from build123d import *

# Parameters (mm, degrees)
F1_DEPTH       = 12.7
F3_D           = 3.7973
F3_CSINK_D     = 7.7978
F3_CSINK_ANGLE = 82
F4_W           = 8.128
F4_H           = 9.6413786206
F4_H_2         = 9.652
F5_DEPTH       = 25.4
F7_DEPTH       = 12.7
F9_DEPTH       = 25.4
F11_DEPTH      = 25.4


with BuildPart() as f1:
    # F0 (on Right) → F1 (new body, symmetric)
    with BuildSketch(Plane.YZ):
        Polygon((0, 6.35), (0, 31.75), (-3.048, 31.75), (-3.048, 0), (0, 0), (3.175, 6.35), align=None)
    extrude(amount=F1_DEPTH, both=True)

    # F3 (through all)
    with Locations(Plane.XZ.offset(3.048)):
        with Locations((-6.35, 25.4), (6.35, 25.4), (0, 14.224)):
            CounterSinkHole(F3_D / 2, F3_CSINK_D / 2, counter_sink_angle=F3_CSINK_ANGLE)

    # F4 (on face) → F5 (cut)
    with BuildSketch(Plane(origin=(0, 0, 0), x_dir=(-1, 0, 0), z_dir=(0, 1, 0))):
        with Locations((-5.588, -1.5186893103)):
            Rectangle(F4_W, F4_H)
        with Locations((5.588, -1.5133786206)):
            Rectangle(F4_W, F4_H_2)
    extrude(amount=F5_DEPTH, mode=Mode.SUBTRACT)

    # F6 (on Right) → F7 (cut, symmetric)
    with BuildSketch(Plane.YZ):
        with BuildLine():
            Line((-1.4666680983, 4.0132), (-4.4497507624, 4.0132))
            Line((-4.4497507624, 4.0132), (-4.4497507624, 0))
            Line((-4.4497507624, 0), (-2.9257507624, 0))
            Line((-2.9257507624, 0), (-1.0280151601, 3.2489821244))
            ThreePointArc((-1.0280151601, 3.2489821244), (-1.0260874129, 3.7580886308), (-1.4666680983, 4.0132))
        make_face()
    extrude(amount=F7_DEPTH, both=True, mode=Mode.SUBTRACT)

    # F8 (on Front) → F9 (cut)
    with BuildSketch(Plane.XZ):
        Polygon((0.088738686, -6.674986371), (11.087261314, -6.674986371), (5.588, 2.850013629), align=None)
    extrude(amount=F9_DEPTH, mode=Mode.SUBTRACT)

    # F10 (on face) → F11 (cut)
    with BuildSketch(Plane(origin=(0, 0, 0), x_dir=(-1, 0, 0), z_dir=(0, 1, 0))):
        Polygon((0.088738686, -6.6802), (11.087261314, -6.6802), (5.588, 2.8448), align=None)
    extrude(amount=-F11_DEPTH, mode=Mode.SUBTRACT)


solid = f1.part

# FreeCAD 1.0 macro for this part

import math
import FreeCAD as App
import Part
import Sketcher
from FreeCAD import Vector
Q = App.Units.Quantity


def add_polygon(sketch, points):
    """Adds a closed chain of lines whose ends are joined by coincident constraints."""
    first, n = sketch.GeometryCount, len(points)
    for a, b in zip(points, points[1:] + points[:1]):
        sketch.addGeometry(Part.LineSegment(App.Vector(*a, 0), App.Vector(*b, 0)), False)
    for i in range(n):
        sketch.addConstraint(Sketcher.Constraint("Coincident", first + i, 2, first + (i + 1) % n, 1))

doc = App.newDocument("Part")
params = doc.addObject("Spreadsheet::Sheet", "Params")
for row, (alias, value) in enumerate([
    ("sketch1_height", "1 in"),
    ("sketch1_width", "0.12 in"),
    ("sketch1_height2", "1.25 in"),
    ("sketch1_width2", "0.125 in"),
    ("pad1_length", "1 in"),
    ("hole_diameter", "0.1495 in"),
    ("hole_csink_diameter", "0.307 in"),
    ("sketch3_width", "0.32 in"),
    ("sketch3_height", "0.38 in"),
    ("pocket1_length", "1 in"),
    ("sketch4_radius", "0.02 in"),
    ("sketch4_width", "0.06 in"),
    ("sketch4_height", "0.158 in"),
    ("pocket2_length", "1 in"),
    ("pocket3_length", "1 in"),
    ("pocket4_length", "1 in"),
], start=1):
    params.set(f"A{row}", alias)
    params.set(f"B{row}", "=" + value)
    params.setAlias(f"B{row}", alias)

body = doc.addObject("PartDesign::Body", "Body")

sketch1 = body.newObject("Sketcher::SketchObject", "Sketch")
sketch1.AttachmentSupport = (doc.getObject("YZ_Plane"), [""])
sketch1.MapMode = "FlatFace"
add_polygon(sketch1, [(0, 6.35), (0, 31.75), (-3.048, 31.75), (-3.048, 0), (0, 0), (3.175, 6.35)])
sketch1.addConstraint(Sketcher.Constraint("Vertical", 0))
sketch1.addConstraint(Sketcher.Constraint("Horizontal", 1))
sketch1.addConstraint(Sketcher.Constraint("Vertical", 2))
sketch1.addConstraint(Sketcher.Constraint("Horizontal", 3))
sketch1.addConstraint(Sketcher.Constraint("Horizontal", 5))
sketch1.addConstraint(Sketcher.Constraint("Coincident", 3, 2, -1, 1))
sketch1.addConstraint(Sketcher.Constraint("PointOnObject", 0, 2, -2))
sketch1.addConstraint(Sketcher.Constraint("DistanceY", 0, 1, 0, 2, Q("1 in")))
sketch1.addConstraint(Sketcher.Constraint("DistanceX", 1, 2, 1, 1, Q("0.12 in")))
sketch1.addConstraint(Sketcher.Constraint("DistanceY", 2, 2, 2, 1, Q("1.25 in")))
sketch1.addConstraint(Sketcher.Constraint("DistanceX", 5, 2, 5, 1, Q("0.125 in")))
sketch1.setExpression("Constraints[13]", "Params.sketch1_height")
sketch1.setExpression("Constraints[14]", "Params.sketch1_width")
sketch1.setExpression("Constraints[15]", "Params.sketch1_height2")
sketch1.setExpression("Constraints[16]", "Params.sketch1_width2")
pad1 = body.newObject("PartDesign::Pad", "Pad")
pad1.Profile = sketch1
pad1.setExpression("Length", "Params.pad1_length")
pad1.Midplane = True

sketch2 = body.newObject("Sketcher::SketchObject", "Sketch001")
sketch2.AttachmentSupport = (doc.getObject("XZ_Plane"), [""])
sketch2.MapMode = "FlatFace"
sketch2.AttachmentOffset = App.Placement(Vector(0, 0, 0.12 * 25.4), App.Rotation())
sketch2.addGeometry(Part.Circle(Vector(-6.35, 25.4, 0), Vector(0, 0, 1), 1.89865), False)
sketch2.addGeometry(Part.Circle(Vector(6.35, 25.4, 0), Vector(0, 0, 1), 1.89865), False)
sketch2.addGeometry(Part.Circle(Vector(0, 14.224, 0), Vector(0, 0, 1), 1.89865), False)
sketch2.addConstraint(Sketcher.Constraint("Equal", 0, 1))
sketch2.addConstraint(Sketcher.Constraint("Equal", 1, 2))
sketch2.addConstraint(Sketcher.Constraint("Symmetric", 0, 3, 1, 3, -2))
sketch2.addConstraint(Sketcher.Constraint("PointOnObject", 2, 3, -2))
sketch2.addConstraint(Sketcher.Constraint("DistanceY", -1, 1, 0, 3, Q("1 in")))
sketch2.addConstraint(Sketcher.Constraint("Diameter", 0, Q("0.1495 in")))
sketch2.addConstraint(Sketcher.Constraint("DistanceX", 0, 3, 1, 3, Q("0.5 in")))
sketch2.addConstraint(Sketcher.Constraint("DistanceY", -1, 1, 2, 3, Q("0.56 in")))
doc.recompute()
hole = body.newObject("PartDesign::Hole", "Hole")
hole.Profile = sketch2
hole.ThreadType = "None"
hole.setExpression("Diameter", "Params.hole_diameter")
hole.DepthType = "ThroughAll"
hole.HoleCutType = "Countersink"
hole.setExpression("HoleCutDiameter", "Params.hole_csink_diameter")
hole.HoleCutCountersinkAngle = 82

sketch3 = body.newObject("Sketcher::SketchObject", "Sketch002")
sketch3.AttachmentSupport = (doc.getObject("XZ_Plane"), [""])
sketch3.MapMode = "FlatFace"
add_polygon(sketch3, [(9.652, 3.302), (9.652, -6.339379), (1.524, -6.339379), (1.524, 3.302)])
add_polygon(sketch3, [(-1.524, 3.312621), (-1.524, -6.339379), (-9.652, -6.339379), (-9.652, 3.312621)])
sketch3.addConstraint(Sketcher.Constraint("Vertical", 0))
sketch3.addConstraint(Sketcher.Constraint("Horizontal", 1))
sketch3.addConstraint(Sketcher.Constraint("Vertical", 2))
sketch3.addConstraint(Sketcher.Constraint("Horizontal", 3))
sketch3.addConstraint(Sketcher.Constraint("Vertical", 4))
sketch3.addConstraint(Sketcher.Constraint("Horizontal", 5))
sketch3.addConstraint(Sketcher.Constraint("Vertical", 6))
sketch3.addConstraint(Sketcher.Constraint("Horizontal", 7))
sketch3.addConstraint(Sketcher.Constraint("Symmetric", 1, 2, 4, 2, -2))
sketch3.addConstraint(Sketcher.Constraint("Equal", 3, 5))
sketch3.addConstraint(Sketcher.Constraint("DistanceX", 1, 2, 1, 1, Q("0.32 in")))
sketch3.addConstraint(Sketcher.Constraint("DistanceY", 4, 2, 4, 1, Q("0.38 in")))
sketch3.addConstraint(Sketcher.Constraint("DistanceX", -1, 1, 0, 2, Q("0.38 in")))
sketch3.addConstraint(Sketcher.Constraint("DistanceY", -1, 1, 2, 2, Q("0.13 in")))
sketch3.addConstraint(Sketcher.Constraint("DistanceY", 0, 2, 0, 1, 9.641379))
sketch3.setExpression("Constraints[18]", "Params.sketch3_width")
sketch3.setExpression("Constraints[19]", "Params.sketch3_height")
pocket1 = body.newObject("PartDesign::Pocket", "Pocket")
pocket1.Profile = sketch3
pocket1.setExpression("Length", "Params.pocket1_length")

sketch4 = body.newObject("Sketcher::SketchObject", "Sketch003")
sketch4.AttachmentSupport = (doc.getObject("YZ_Plane"), [""])
sketch4.MapMode = "FlatFace"
sketch4.addGeometry(Part.LineSegment(Vector(-1.466668, 4.0132, 0), Vector(-4.449751, 4.0132, 0)), False)
sketch4.addGeometry(Part.LineSegment(Vector(-4.449751, 4.0132, 0), Vector(-4.449751, 0, 0)), False)
sketch4.addGeometry(Part.LineSegment(Vector(-4.449751, 0, 0), Vector(-2.925751, 0, 0)), False)
sketch4.addGeometry(Part.LineSegment(Vector(-2.925751, 0, 0), Vector(-1.028015, 3.248982, 0)), False)
sketch4.addGeometry(Part.ArcOfCircle(Part.Circle(Vector(-1.466668, 3.5052, 0), Vector(0, 0, 1), 0.508), math.radians(-30.289268), math.radians(90)), False)
sketch4.addConstraint(Sketcher.Constraint("Coincident", 0, 2, 1, 1))
sketch4.addConstraint(Sketcher.Constraint("Coincident", 1, 2, 2, 1))
sketch4.addConstraint(Sketcher.Constraint("Coincident", 2, 2, 3, 1))
sketch4.addConstraint(Sketcher.Constraint("Tangent", 3, 2, 4, 1))
sketch4.addConstraint(Sketcher.Constraint("Tangent", 4, 2, 0, 1))
sketch4.addConstraint(Sketcher.Constraint("Horizontal", 0))
sketch4.addConstraint(Sketcher.Constraint("Vertical", 1))
sketch4.addConstraint(Sketcher.Constraint("Horizontal", 2))
sketch4.addConstraint(Sketcher.Constraint("PointOnObject", 1, 2, -1))
sketch4.addConstraint(Sketcher.Constraint("Radius", 4, Q("0.02 in")))
sketch4.addConstraint(Sketcher.Constraint("DistanceX", 2, 1, 2, 2, Q("0.06 in")))
sketch4.addConstraint(Sketcher.Constraint("DistanceY", 1, 2, 1, 1, Q("0.158 in")))
sketch4.addConstraint(Sketcher.Constraint("DistanceX", 0, 2, 0, 1, 2.983083))
sketch4.addConstraint(Sketcher.Constraint("DistanceX", 4, 3, -1, 1, 1.466668))
sketch4.setExpression("Constraints[9]", "Params.sketch4_radius")
sketch4.setExpression("Constraints[10]", "Params.sketch4_width")
sketch4.setExpression("Constraints[11]", "Params.sketch4_height")
pocket2 = body.newObject("PartDesign::Pocket", "Pocket001")
pocket2.Profile = sketch4
pocket2.setExpression("Length", "Params.pocket2_length")
pocket2.Midplane = True

sketch5 = body.newObject("Sketcher::SketchObject", "Sketch004")
sketch5.AttachmentSupport = (doc.getObject("XZ_Plane"), [""])
sketch5.MapMode = "FlatFace"
add_polygon(sketch5, [(0.088739, -6.674986), (11.087261, -6.674986), (5.588, 2.850014)])
sketch5.addConstraint(Sketcher.Constraint("Horizontal", 0))
sketch5.addConstraint(Sketcher.Constraint("Equal", 1, 2))
sketch5.addConstraint(Sketcher.Constraint("Angle", 1, Q("120 deg")))
sketch5.addConstraint(Sketcher.Constraint("DistanceX", -1, 1, 1, 2, Q("0.22 in")))
sketch5.addConstraint(Sketcher.Constraint("DistanceY", 0, 2, 1, 2, Q("0.375 in")))
sketch5.addConstraint(Sketcher.Constraint("DistanceY", 0, 2, -1, 1, 6.674986))
pocket3 = body.newObject("PartDesign::Pocket", "Pocket002")
pocket3.Profile = sketch5
pocket3.setExpression("Length", "Params.pocket3_length")
pocket3.Reversed = True

sketch6 = body.newObject("Sketcher::SketchObject", "Sketch005")
sketch6.AttachmentSupport = (doc.getObject("XZ_Plane"), [""])
sketch6.MapMode = "FlatFace"
add_polygon(sketch6, [(-0.088739, -6.6802), (-11.087261, -6.6802), (-5.588, 2.8448)])
sketch6.addConstraint(Sketcher.Constraint("Horizontal", 0))
sketch6.addConstraint(Sketcher.Constraint("Equal", 1, 2))
sketch6.addConstraint(Sketcher.Constraint("Angle", 1, Q("60 deg")))
sketch6.addConstraint(Sketcher.Constraint("DistanceX", 1, 2, -1, 1, Q("0.22 in")))
sketch6.addConstraint(Sketcher.Constraint("DistanceY", 0, 2, -1, 1, Q("0.263 in")))
sketch6.addConstraint(Sketcher.Constraint("DistanceY", -1, 1, 1, 2, Q("0.112 in")))
pocket4 = body.newObject("PartDesign::Pocket", "Pocket003")
pocket4.Profile = sketch6
pocket4.setExpression("Length", "Params.pocket4_length")
pocket4.Reversed = True

doc.recompute()
